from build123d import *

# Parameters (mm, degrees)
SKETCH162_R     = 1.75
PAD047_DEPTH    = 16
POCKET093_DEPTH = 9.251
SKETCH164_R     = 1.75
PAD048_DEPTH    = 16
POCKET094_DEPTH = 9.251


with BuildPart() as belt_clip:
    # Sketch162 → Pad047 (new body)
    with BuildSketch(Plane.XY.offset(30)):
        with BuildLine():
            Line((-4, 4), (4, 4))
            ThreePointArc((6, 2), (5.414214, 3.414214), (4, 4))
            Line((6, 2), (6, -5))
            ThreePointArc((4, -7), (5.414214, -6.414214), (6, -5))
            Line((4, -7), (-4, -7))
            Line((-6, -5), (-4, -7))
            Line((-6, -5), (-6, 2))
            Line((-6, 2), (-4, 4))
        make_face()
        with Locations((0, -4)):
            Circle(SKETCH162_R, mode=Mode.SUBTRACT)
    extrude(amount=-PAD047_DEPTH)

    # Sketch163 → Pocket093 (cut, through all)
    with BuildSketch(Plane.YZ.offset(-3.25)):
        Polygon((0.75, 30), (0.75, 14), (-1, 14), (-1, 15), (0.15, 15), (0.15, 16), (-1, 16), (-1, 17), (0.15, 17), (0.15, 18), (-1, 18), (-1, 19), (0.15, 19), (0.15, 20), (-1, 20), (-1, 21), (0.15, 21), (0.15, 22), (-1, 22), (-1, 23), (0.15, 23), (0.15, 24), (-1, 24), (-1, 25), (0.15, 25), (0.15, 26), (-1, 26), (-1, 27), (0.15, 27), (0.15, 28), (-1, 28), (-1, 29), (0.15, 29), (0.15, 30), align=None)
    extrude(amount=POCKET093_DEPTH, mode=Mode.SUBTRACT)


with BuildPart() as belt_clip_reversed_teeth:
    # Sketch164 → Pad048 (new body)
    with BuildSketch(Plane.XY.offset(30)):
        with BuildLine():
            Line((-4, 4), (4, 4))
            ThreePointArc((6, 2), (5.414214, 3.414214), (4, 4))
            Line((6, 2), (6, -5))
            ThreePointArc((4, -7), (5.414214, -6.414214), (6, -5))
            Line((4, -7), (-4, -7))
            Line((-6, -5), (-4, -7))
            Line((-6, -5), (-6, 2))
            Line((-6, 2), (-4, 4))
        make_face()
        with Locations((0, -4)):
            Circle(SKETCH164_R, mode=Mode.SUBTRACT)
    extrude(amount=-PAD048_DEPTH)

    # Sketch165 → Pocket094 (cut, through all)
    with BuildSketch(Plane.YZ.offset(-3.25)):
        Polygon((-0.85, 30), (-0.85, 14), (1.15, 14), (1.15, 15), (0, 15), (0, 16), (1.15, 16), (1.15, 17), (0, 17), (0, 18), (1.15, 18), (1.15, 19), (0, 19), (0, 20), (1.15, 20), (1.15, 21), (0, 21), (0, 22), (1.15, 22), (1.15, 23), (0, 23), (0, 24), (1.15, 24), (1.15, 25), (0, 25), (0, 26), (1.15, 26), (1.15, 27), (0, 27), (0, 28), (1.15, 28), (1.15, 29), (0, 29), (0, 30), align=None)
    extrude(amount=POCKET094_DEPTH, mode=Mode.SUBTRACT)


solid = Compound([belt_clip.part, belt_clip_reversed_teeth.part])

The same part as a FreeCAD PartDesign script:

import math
import FreeCAD as App
import Part
import Sketcher
Q = App.Units.Quantity


def add_polygon(sketch, points):
    """Adds a closed chain of lines whose ends are joined by coincident constraints."""
    first, n = sketch.GeometryCount, len(points)
    for a, b in zip(points, points[1:] + points[:1]):
        sketch.addGeometry(Part.LineSegment(App.Vector(*a, 0), App.Vector(*b, 0)), False)
    for i in range(n):
        sketch.addConstraint(Sketcher.Constraint("Coincident", first + i, 2, first + (i + 1) % n, 1))

doc = App.newDocument("Part")
body = doc.addObject("PartDesign::Body", "Body")

# Sketch on XY plane
sketch1 = body.newObject("Sketcher::SketchObject", "Sketch")
sketch1.AttachmentSupport = (doc.getObject("XY_Plane"), [""])
sketch1.MapMode = "FlatFace"
sketch1.AttachmentOffset = App.Placement(App.Vector(0, 0, 30), App.Rotation())
sketch1.addGeometry(Part.LineSegment(App.Vector(4, 4, 0), App.Vector(-4, 4, 0)), False)
sketch1.addGeometry(Part.LineSegment(App.Vector(-4, 4, 0), App.Vector(-6, 2, 0)), False)
sketch1.addGeometry(Part.LineSegment(App.Vector(-6, 2, 0), App.Vector(-6, -5, 0)), False)
sketch1.addGeometry(Part.LineSegment(App.Vector(-6, -5, 0), App.Vector(-4, -7, 0)), False)
sketch1.addGeometry(Part.LineSegment(App.Vector(-4, -7, 0), App.Vector(4, -7, 0)), False)
sketch1.addGeometry(Part.ArcOfCircle(Part.Circle(App.Vector(4, -5, 0), App.Vector(0, 0, 1), 2), math.radians(-90), math.radians(0)), False)
sketch1.addGeometry(Part.LineSegment(App.Vector(6, -5, 0), App.Vector(6, 2, 0)), False)
sketch1.addGeometry(Part.ArcOfCircle(Part.Circle(App.Vector(4, 2, 0), App.Vector(0, 0, 1), 2), math.radians(0), math.radians(90)), False)
sketch1.addGeometry(Part.Circle(App.Vector(0, -4, 0), App.Vector(0, 0, 1), 1.8), False)
sketch1.addConstraint(Sketcher.Constraint("Coincident", 0, 2, 1, 1))
sketch1.addConstraint(Sketcher.Constraint("Coincident", 1, 2, 2, 1))
sketch1.addConstraint(Sketcher.Constraint("Coincident", 2, 2, 3, 1))
sketch1.addConstraint(Sketcher.Constraint("Coincident", 3, 2, 4, 1))
sketch1.addConstraint(Sketcher.Constraint("Tangent", 4, 2, 5, 1))
sketch1.addConstraint(Sketcher.Constraint("Tangent", 5, 2, 6, 1))
sketch1.addConstraint(Sketcher.Constraint("Tangent", 6, 2, 7, 1))
sketch1.addConstraint(Sketcher.Constraint("Tangent", 7, 2, 0, 1))
sketch1.addConstraint(Sketcher.Constraint("Horizontal", 0))
sketch1.addConstraint(Sketcher.Constraint("Vertical", 2))
sketch1.addConstraint(Sketcher.Constraint("Horizontal", 4))
sketch1.addConstraint(Sketcher.Constraint("Vertical", 6))
sketch1.addConstraint(Sketcher.Constraint("Equal", 5, 7))
sketch1.addConstraint(Sketcher.Constraint("Symmetric", 2, 2, 5, 2, -2))
sketch1.addConstraint(Sketcher.Constraint("PointOnObject", 8, 3, -2))
sketch1.addConstraint(Sketcher.Constraint("Perpendicular", 1, 3))
sketch1.addConstraint(Sketcher.Constraint("Horizontal", 7, 3, 1, 2))
sketch1.addConstraint(Sketcher.Constraint("Vertical", 0, 2, 3, 2))
sketch1.addConstraint(Sketcher.Constraint("Radius", 5, Q("1.999999 mm")))
sketch1.addConstraint(Sketcher.Constraint("Diameter", 8, Q("3.5 mm")))
sketch1.addConstraint(Sketcher.Constraint("DistanceX", 0, 2, 0, 1, Q("8 mm")))
sketch1.addConstraint(Sketcher.Constraint("DistanceY", 2, 2, 2, 1, Q("7 mm")))
sketch1.addConstraint(Sketcher.Constraint("DistanceY", 5, 3, -1, 1, Q("5.000001 mm")))
sketch1.addConstraint(Sketcher.Constraint("DistanceY", 8, 3, -1, 1, Q("4 mm")))
pad1 = body.newObject("PartDesign::Pad", "Pad")
pad1.Profile = sketch1
pad1.Length = 16
pad1.Reversed = True

# Sketch on YZ plane
sketch2 = body.newObject("Sketcher::SketchObject", "Sketch001")
sketch2.AttachmentSupport = (doc.getObject("YZ_Plane"), [""])
sketch2.MapMode = "FlatFace"
sketch2.AttachmentOffset = App.Placement(App.Vector(0, 0, -3.25), App.Rotation())
add_polygon(sketch2, [(0.8, 14), (0.8, 30), (0.1, 30), (0.1, 29), (-1, 29), (-1, 28), (0.1, 28), (0.1, 27), (-1, 27), (-1, 26), (0.1, 26), (0.1, 25), (-1, 25), (-1, 24), (0.1, 24), (0.1, 23), (-1, 23), (-1, 22), (0.1, 22), (0.1, 21), (-1, 21), (-1, 20), (0.1, 20), (0.1, 19), (-1, 19), (-1, 18), (0.1, 18), (0.1, 17), (-1, 17), (-1, 16), (0.1, 16), (0.1, 15), (-1, 15), (-1, 14)])  # lines 0-33
sketch2.addConstraint(Sketcher.Constraint("Vertical", 0))
sketch2.addConstraint(Sketcher.Constraint("Horizontal", 1))
sketch2.addConstraint(Sketcher.Constraint("Vertical", 2))
sketch2.addConstraint(Sketcher.Constraint("Horizontal", 3))
sketch2.addConstraint(Sketcher.Constraint("Vertical", 4))
sketch2.addConstraint(Sketcher.Constraint("Horizontal", 5))
sketch2.addConstraint(Sketcher.Constraint("Vertical", 6))
sketch2.addConstraint(Sketcher.Constraint("Horizontal", 7))
sketch2.addConstraint(Sketcher.Constraint("Vertical", 8))
sketch2.addConstraint(Sketcher.Constraint("Horizontal", 9))
sketch2.addConstraint(Sketcher.Constraint("Vertical", 10))
sketch2.addConstraint(Sketcher.Constraint("Horizontal", 11))
sketch2.addConstraint(Sketcher.Constraint("Vertical", 12))
sketch2.addConstraint(Sketcher.Constraint("Horizontal", 13))
sketch2.addConstraint(Sketcher.Constraint("Vertical", 14))
sketch2.addConstraint(Sketcher.Constraint("Horizontal", 15))
sketch2.addConstraint(Sketcher.Constraint("Vertical", 16))
sketch2.addConstraint(Sketcher.Constraint("Horizontal", 17))
sketch2.addConstraint(Sketcher.Constraint("Vertical", 18))
sketch2.addConstraint(Sketcher.Constraint("Horizontal", 19))
sketch2.addConstraint(Sketcher.Constraint("Vertical", 20))
sketch2.addConstraint(Sketcher.Constraint("Horizontal", 21))
sketch2.addConstraint(Sketcher.Constraint("Vertical", 22))
sketch2.addConstraint(Sketcher.Constraint("Horizontal", 23))
sketch2.addConstraint(Sketcher.Constraint("Vertical", 24))
sketch2.addConstraint(Sketcher.Constraint("Horizontal", 25))
sketch2.addConstraint(Sketcher.Constraint("Vertical", 26))
sketch2.addConstraint(Sketcher.Constraint("Horizontal", 27))
sketch2.addConstraint(Sketcher.Constraint("Vertical", 28))
sketch2.addConstraint(Sketcher.Constraint("Horizontal", 29))
sketch2.addConstraint(Sketcher.Constraint("Vertical", 30))
sketch2.addConstraint(Sketcher.Constraint("Horizontal", 31))
sketch2.addConstraint(Sketcher.Constraint("Vertical", 32))
sketch2.addConstraint(Sketcher.Constraint("Horizontal", 33))
sketch2.addConstraint(Sketcher.Constraint("Vertical", 2, 2, 5, 2))
sketch2.addConstraint(Sketcher.Constraint("Vertical", 4, 2, 7, 2))
sketch2.addConstraint(Sketcher.Constraint("Vertical", 6, 2, 9, 2))
sketch2.addConstraint(Sketcher.Constraint("Vertical", 8, 2, 11, 2))
sketch2.addConstraint(Sketcher.Constraint("Vertical", 10, 2, 13, 2))
sketch2.addConstraint(Sketcher.Constraint("Vertical", 12, 2, 15, 2))
sketch2.addConstraint(Sketcher.Constraint("Vertical", 14, 2, 17, 2))
sketch2.addConstraint(Sketcher.Constraint("Vertical", 16, 2, 19, 2))
sketch2.addConstraint(Sketcher.Constraint("Vertical", 18, 2, 21, 2))
sketch2.addConstraint(Sketcher.Constraint("Vertical", 20, 2, 23, 2))
sketch2.addConstraint(Sketcher.Constraint("Vertical", 22, 2, 25, 2))
sketch2.addConstraint(Sketcher.Constraint("Vertical", 24, 2, 27, 2))
sketch2.addConstraint(Sketcher.Constraint("Vertical", 26, 2, 29, 2))
sketch2.addConstraint(Sketcher.Constraint("Vertical", 28, 2, 31, 2))
sketch2.addConstraint(Sketcher.Constraint("Equal", 2, 4))
sketch2.addConstraint(Sketcher.Constraint("Equal", 4, 6))
sketch2.addConstraint(Sketcher.Constraint("Equal", 6, 8))
sketch2.addConstraint(Sketcher.Constraint("Equal", 8, 10))
sketch2.addConstraint(Sketcher.Constraint("Equal", 10, 12))
sketch2.addConstraint(Sketcher.Constraint("Equal", 12, 14))
sketch2.addConstraint(Sketcher.Constraint("Equal", 14, 16))
sketch2.addConstraint(Sketcher.Constraint("Equal", 16, 18))
sketch2.addConstraint(Sketcher.Constraint("Equal", 18, 20))
sketch2.addConstraint(Sketcher.Constraint("Equal", 20, 22))
sketch2.addConstraint(Sketcher.Constraint("Equal", 22, 24))
sketch2.addConstraint(Sketcher.Constraint("Equal", 24, 26))
sketch2.addConstraint(Sketcher.Constraint("Equal", 26, 28))
sketch2.addConstraint(Sketcher.Constraint("Equal", 28, 30))
sketch2.addConstraint(Sketcher.Constraint("Equal", 30, 32))
sketch2.addConstraint(Sketcher.Constraint("DistanceY", 0, 1, 0, 2, Q("16 mm")))
sketch2.addConstraint(Sketcher.Constraint("DistanceX", 1, 2, 1, 1, Q("0.6 mm")))
sketch2.addConstraint(Sketcher.Constraint("DistanceY", -1, 1, 0, 2, Q("30 mm")))
sketch2.addConstraint(Sketcher.Constraint("DistanceX", 3, 2, -1, 1, Q("1 mm")))
sketch2.addConstraint(Sketcher.Constraint("DistanceX", 3, 2, 3, 1, Q("1.15 mm")))
pocket1 = body.newObject("PartDesign::Pocket", "Pocket")
pocket1.Profile = sketch2
pocket1.Type = "ThroughAll"
pocket1.Reversed = True
body2 = doc.addObject("PartDesign::Body", "Body001")

# Sketch on XY plane
sketch3 = body2.newObject("Sketcher::SketchObject", "Sketch002")
sketch3.AttachmentSupport = (doc.getObject("XY_Plane001"), [""])
sketch3.MapMode = "FlatFace"
sketch3.AttachmentOffset = App.Placement(App.Vector(0, 0, 30), App.Rotation())
sketch3.addGeometry(Part.LineSegment(App.Vector(4, 4, 0), App.Vector(-4, 4, 0)), False)
sketch3.addGeometry(Part.LineSegment(App.Vector(-4, 4, 0), App.Vector(-6, 2, 0)), False)
sketch3.addGeometry(Part.LineSegment(App.Vector(-6, 2, 0), App.Vector(-6, -5, 0)), False)
sketch3.addGeometry(Part.LineSegment(App.Vector(-6, -5, 0), App.Vector(-4, -7, 0)), False)
sketch3.addGeometry(Part.LineSegment(App.Vector(-4, -7, 0), App.Vector(4, -7, 0)), False)
sketch3.addGeometry(Part.ArcOfCircle(Part.Circle(App.Vector(4, -5, 0), App.Vector(0, 0, 1), 2), math.radians(-90), math.radians(0)), False)
sketch3.addGeometry(Part.LineSegment(App.Vector(6, -5, 0), App.Vector(6, 2, 0)), False)
sketch3.addGeometry(Part.ArcOfCircle(Part.Circle(App.Vector(4, 2, 0), App.Vector(0, 0, 1), 2), math.radians(0), math.radians(90)), False)
sketch3.addGeometry(Part.Circle(App.Vector(0, -4, 0), App.Vector(0, 0, 1), 1.8), False)
sketch3.addConstraint(Sketcher.Constraint("Coincident", 0, 2, 1, 1))
sketch3.addConstraint(Sketcher.Constraint("Coincident", 1, 2, 2, 1))
sketch3.addConstraint(Sketcher.Constraint("Coincident", 2, 2, 3, 1))
sketch3.addConstraint(Sketcher.Constraint("Coincident", 3, 2, 4, 1))
sketch3.addConstraint(Sketcher.Constraint("Tangent", 4, 2, 5, 1))
sketch3.addConstraint(Sketcher.Constraint("Tangent", 5, 2, 6, 1))
sketch3.addConstraint(Sketcher.Constraint("Tangent", 6, 2, 7, 1))
sketch3.addConstraint(Sketcher.Constraint("Tangent", 7, 2, 0, 1))
sketch3.addConstraint(Sketcher.Constraint("Horizontal", 0))
sketch3.addConstraint(Sketcher.Constraint("Vertical", 2))
sketch3.addConstraint(Sketcher.Constraint("Horizontal", 4))
sketch3.addConstraint(Sketcher.Constraint("Vertical", 6))
sketch3.addConstraint(Sketcher.Constraint("Equal", 5, 7))
sketch3.addConstraint(Sketcher.Constraint("Symmetric", 2, 2, 5, 2, -2))
sketch3.addConstraint(Sketcher.Constraint("PointOnObject", 8, 3, -2))
sketch3.addConstraint(Sketcher.Constraint("Perpendicular", 1, 3))
sketch3.addConstraint(Sketcher.Constraint("Horizontal", 7, 3, 1, 2))
sketch3.addConstraint(Sketcher.Constraint("Vertical", 0, 2, 3, 2))
sketch3.addConstraint(Sketcher.Constraint("Radius", 5, Q("1.999999 mm")))
sketch3.addConstraint(Sketcher.Constraint("Diameter", 8, Q("3.5 mm")))
sketch3.addConstraint(Sketcher.Constraint("DistanceX", 0, 2, 0, 1, Q("8 mm")))
sketch3.addConstraint(Sketcher.Constraint("DistanceY", 2, 2, 2, 1, Q("7 mm")))
sketch3.addConstraint(Sketcher.Constraint("DistanceY", 5, 3, -1, 1, Q("5.000001 mm")))
sketch3.addConstraint(Sketcher.Constraint("DistanceY", 8, 3, -1, 1, Q("4 mm")))
pad2 = body2.newObject("PartDesign::Pad", "Pad001")
pad2.Profile = sketch3
pad2.Length = 16
pad2.Reversed = True

# Sketch on YZ plane
sketch4 = body2.newObject("Sketcher::SketchObject", "Sketch003")
sketch4.AttachmentSupport = (doc.getObject("YZ_Plane001"), [""])
sketch4.MapMode = "FlatFace"
sketch4.AttachmentOffset = App.Placement(App.Vector(0, 0, -3.25), App.Rotation())
add_polygon(sketch4, [(-0.8, 30), (-0.8, 14), (1.1, 14), (1.1, 15), (0, 15), (0, 16), (1.1, 16), (1.1, 17), (0, 17), (0, 18), (1.1, 18), (1.1, 19), (0, 19), (0, 20), (1.1, 20), (1.1, 21), (0, 21), (0, 22), (1.1, 22), (1.1, 23), (0, 23), (0, 24), (1.1, 24), (1.1, 25), (0, 25), (0, 26), (1.1, 26), (1.1, 27), (0, 27), (0, 28), (1.1, 28), (1.1, 29), (0, 29), (0, 30)])  # lines 0-33
sketch4.addConstraint(Sketcher.Constraint("Vertical", 0))
sketch4.addConstraint(Sketcher.Constraint("Horizontal", 1))
sketch4.addConstraint(Sketcher.Constraint("Vertical", 2))
sketch4.addConstraint(Sketcher.Constraint("Horizontal", 3))
sketch4.addConstraint(Sketcher.Constraint("Vertical", 4))
sketch4.addConstraint(Sketcher.Constraint("Horizontal", 5))
sketch4.addConstraint(Sketcher.Constraint("Vertical", 6))
sketch4.addConstraint(Sketcher.Constraint("Horizontal", 7))
sketch4.addConstraint(Sketcher.Constraint("Vertical", 8))
sketch4.addConstraint(Sketcher.Constraint("Horizontal", 9))
sketch4.addConstraint(Sketcher.Constraint("Vertical", 10))
sketch4.addConstraint(Sketcher.Constraint("Horizontal", 11))
sketch4.addConstraint(Sketcher.Constraint("Vertical", 12))
sketch4.addConstraint(Sketcher.Constraint("Horizontal", 13))
sketch4.addConstraint(Sketcher.Constraint("Vertical", 14))
sketch4.addConstraint(Sketcher.Constraint("Horizontal", 15))
sketch4.addConstraint(Sketcher.Constraint("Vertical", 16))
sketch4.addConstraint(Sketcher.Constraint("Horizontal", 17))
sketch4.addConstraint(Sketcher.Constraint("Vertical", 18))
sketch4.addConstraint(Sketcher.Constraint("Horizontal", 19))
sketch4.addConstraint(Sketcher.Constraint("Vertical", 20))
sketch4.addConstraint(Sketcher.Constraint("Horizontal", 21))
sketch4.addConstraint(Sketcher.Constraint("Vertical", 22))
sketch4.addConstraint(Sketcher.Constraint("Horizontal", 23))
sketch4.addConstraint(Sketcher.Constraint("Vertical", 24))
sketch4.addConstraint(Sketcher.Constraint("Horizontal", 25))
sketch4.addConstraint(Sketcher.Constraint("Vertical", 26))
sketch4.addConstraint(Sketcher.Constraint("Horizontal", 27))
sketch4.addConstraint(Sketcher.Constraint("Vertical", 28))
sketch4.addConstraint(Sketcher.Constraint("Horizontal", 29))
sketch4.addConstraint(Sketcher.Constraint("Vertical", 30))
sketch4.addConstraint(Sketcher.Constraint("Horizontal", 31))
sketch4.addConstraint(Sketcher.Constraint("Vertical", 32))
sketch4.addConstraint(Sketcher.Constraint("Horizontal", 33))
sketch4.addConstraint(Sketcher.Constraint("PointOnObject", 3, 2, -2))
sketch4.addConstraint(Sketcher.Constraint("PointOnObject", 7, 2, -2))
sketch4.addConstraint(Sketcher.Constraint("PointOnObject", 11, 2, -2))
sketch4.addConstraint(Sketcher.Constraint("PointOnObject", 15, 2, -2))
sketch4.addConstraint(Sketcher.Constraint("PointOnObject", 19, 2, -2))
sketch4.addConstraint(Sketcher.Constraint("PointOnObject", 23, 2, -2))
sketch4.addConstraint(Sketcher.Constraint("PointOnObject", 27, 2, -2))
sketch4.addConstraint(Sketcher.Constraint("PointOnObject", 31, 2, -2))
sketch4.addConstraint(Sketcher.Constraint("Vertical", 2, 2, 5, 2))
sketch4.addConstraint(Sketcher.Constraint("Vertical", 6, 2, 9, 2))
sketch4.addConstraint(Sketcher.Constraint("Vertical", 10, 2, 13, 2))
sketch4.addConstraint(Sketcher.Constraint("Vertical", 14, 2, 17, 2))
sketch4.addConstraint(Sketcher.Constraint("Vertical", 18, 2, 21, 2))
sketch4.addConstraint(Sketcher.Constraint("Vertical", 22, 2, 25, 2))
sketch4.addConstraint(Sketcher.Constraint("Vertical", 26, 2, 29, 2))
sketch4.addConstraint(Sketcher.Constraint("Equal", 2, 4))
sketch4.addConstraint(Sketcher.Constraint("Equal", 4, 6))
sketch4.addConstraint(Sketcher.Constraint("Equal", 6, 8))
sketch4.addConstraint(Sketcher.Constraint("Equal", 8, 10))
sketch4.addConstraint(Sketcher.Constraint("Equal", 10, 12))
sketch4.addConstraint(Sketcher.Constraint("Equal", 12, 14))
sketch4.addConstraint(Sketcher.Constraint("Equal", 14, 16))
sketch4.addConstraint(Sketcher.Constraint("Equal", 16, 18))
sketch4.addConstraint(Sketcher.Constraint("Equal", 18, 20))
sketch4.addConstraint(Sketcher.Constraint("Equal", 20, 22))
sketch4.addConstraint(Sketcher.Constraint("Equal", 22, 24))
sketch4.addConstraint(Sketcher.Constraint("Equal", 24, 26))
sketch4.addConstraint(Sketcher.Constraint("Equal", 26, 28))
sketch4.addConstraint(Sketcher.Constraint("Equal", 28, 30))
sketch4.addConstraint(Sketcher.Constraint("Equal", 30, 32))
sketch4.addConstraint(Sketcher.Constraint("DistanceX", 1, 1, 1, 2, Q("2 mm")))
sketch4.addConstraint(Sketcher.Constraint("DistanceY", 0, 2, 0, 1, Q("16 mm")))
sketch4.addConstraint(Sketcher.Constraint("DistanceY", -1, 1, 0, 2, Q("14 mm")))
sketch4.addConstraint(Sketcher.Constraint("DistanceX", 3, 2, 3, 1, Q("1.15 mm")))
pocket2 = body2.newObject("PartDesign::Pocket", "Pocket001")
pocket2.Profile = sketch4
pocket2.Type = "ThroughAll"
pocket2.Reversed = True

doc.recompute()
